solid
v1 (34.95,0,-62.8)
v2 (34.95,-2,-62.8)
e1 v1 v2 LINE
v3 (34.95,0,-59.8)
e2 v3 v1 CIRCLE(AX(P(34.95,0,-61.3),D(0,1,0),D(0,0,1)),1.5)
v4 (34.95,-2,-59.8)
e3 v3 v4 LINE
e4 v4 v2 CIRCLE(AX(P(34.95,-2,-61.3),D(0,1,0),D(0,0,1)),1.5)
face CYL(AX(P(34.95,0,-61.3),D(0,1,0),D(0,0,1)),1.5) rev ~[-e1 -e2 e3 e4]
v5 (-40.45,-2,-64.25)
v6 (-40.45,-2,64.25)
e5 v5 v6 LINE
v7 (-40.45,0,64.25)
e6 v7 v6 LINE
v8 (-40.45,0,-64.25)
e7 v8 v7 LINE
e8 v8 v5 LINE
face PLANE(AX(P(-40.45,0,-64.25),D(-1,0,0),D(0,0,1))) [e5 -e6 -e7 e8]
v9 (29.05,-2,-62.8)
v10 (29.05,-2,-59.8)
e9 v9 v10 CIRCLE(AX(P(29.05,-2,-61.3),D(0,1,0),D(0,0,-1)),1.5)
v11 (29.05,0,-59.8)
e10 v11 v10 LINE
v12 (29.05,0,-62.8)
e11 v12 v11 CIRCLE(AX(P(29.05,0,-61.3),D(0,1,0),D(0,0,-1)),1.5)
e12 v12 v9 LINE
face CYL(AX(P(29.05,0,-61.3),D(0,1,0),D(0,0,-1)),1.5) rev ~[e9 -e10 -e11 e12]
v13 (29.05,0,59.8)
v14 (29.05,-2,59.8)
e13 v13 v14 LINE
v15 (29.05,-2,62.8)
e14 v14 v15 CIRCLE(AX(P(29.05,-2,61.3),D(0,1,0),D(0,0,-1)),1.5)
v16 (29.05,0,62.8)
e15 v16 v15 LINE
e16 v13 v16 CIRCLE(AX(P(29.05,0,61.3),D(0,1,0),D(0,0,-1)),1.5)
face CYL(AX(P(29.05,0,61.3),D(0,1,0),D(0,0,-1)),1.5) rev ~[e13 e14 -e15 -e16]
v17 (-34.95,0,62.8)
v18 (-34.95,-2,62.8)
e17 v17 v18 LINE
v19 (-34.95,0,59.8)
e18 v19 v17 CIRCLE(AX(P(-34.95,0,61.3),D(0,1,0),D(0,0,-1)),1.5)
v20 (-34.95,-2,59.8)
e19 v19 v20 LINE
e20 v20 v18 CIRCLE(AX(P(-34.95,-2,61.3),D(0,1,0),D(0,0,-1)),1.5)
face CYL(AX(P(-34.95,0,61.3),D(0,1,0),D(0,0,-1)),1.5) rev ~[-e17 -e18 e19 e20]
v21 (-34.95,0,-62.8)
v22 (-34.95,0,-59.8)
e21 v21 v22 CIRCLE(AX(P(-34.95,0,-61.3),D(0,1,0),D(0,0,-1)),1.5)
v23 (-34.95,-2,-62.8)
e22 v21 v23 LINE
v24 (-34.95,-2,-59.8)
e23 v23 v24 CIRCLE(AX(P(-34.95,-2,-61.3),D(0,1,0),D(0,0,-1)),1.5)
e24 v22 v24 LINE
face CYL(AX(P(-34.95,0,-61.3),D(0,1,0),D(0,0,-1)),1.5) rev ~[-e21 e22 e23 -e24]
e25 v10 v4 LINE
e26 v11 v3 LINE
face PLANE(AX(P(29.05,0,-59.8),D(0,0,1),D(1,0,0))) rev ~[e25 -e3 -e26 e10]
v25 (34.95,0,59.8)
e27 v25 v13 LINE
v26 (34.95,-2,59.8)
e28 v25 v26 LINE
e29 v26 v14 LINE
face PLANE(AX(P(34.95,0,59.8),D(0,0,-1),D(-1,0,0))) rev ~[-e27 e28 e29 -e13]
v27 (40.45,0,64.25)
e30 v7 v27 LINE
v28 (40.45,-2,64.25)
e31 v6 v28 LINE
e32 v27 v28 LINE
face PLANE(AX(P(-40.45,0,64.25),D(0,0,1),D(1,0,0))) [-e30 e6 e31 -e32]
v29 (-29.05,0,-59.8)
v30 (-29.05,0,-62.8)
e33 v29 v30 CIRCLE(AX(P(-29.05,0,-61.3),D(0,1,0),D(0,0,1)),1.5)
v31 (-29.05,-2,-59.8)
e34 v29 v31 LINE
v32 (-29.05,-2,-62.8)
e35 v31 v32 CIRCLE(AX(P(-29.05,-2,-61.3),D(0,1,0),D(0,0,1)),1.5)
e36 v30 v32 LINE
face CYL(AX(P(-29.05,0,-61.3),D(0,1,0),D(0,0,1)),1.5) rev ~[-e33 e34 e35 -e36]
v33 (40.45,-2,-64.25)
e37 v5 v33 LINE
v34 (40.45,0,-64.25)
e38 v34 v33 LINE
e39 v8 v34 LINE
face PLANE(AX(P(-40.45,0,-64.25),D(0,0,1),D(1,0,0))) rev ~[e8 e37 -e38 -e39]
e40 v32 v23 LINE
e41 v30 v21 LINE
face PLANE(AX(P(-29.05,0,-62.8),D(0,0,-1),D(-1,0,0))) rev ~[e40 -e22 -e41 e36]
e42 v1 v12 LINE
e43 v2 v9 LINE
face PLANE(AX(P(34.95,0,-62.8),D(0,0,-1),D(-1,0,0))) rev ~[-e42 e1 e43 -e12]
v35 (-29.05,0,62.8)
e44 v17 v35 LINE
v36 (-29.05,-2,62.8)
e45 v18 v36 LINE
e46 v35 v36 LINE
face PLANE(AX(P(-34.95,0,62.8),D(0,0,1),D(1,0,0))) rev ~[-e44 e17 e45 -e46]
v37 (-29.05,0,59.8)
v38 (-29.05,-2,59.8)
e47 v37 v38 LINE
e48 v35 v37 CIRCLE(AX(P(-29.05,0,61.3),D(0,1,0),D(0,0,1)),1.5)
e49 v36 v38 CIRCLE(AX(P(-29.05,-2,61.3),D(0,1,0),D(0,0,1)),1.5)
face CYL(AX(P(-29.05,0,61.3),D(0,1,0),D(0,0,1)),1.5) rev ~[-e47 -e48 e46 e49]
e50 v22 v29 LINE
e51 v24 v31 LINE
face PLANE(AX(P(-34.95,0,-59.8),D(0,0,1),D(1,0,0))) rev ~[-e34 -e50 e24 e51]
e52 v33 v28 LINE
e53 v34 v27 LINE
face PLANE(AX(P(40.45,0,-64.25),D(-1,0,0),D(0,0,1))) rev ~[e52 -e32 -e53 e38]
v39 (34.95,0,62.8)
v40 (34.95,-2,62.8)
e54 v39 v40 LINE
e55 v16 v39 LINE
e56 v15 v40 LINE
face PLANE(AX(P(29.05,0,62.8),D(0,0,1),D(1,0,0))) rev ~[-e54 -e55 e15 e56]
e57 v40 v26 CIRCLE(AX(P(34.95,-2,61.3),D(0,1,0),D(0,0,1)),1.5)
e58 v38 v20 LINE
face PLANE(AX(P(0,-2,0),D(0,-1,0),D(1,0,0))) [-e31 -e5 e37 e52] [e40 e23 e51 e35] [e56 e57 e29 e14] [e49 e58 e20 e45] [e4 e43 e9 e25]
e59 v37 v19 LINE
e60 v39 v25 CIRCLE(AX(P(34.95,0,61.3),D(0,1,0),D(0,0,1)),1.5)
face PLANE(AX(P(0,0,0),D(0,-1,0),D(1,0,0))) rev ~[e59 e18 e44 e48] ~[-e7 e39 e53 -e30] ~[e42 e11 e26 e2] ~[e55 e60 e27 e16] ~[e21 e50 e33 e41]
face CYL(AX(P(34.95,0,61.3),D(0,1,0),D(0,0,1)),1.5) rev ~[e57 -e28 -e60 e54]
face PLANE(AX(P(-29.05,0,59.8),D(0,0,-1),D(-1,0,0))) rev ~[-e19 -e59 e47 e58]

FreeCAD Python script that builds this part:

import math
import FreeCAD as App
import Part
import Sketcher
from FreeCAD import Vector

doc = App.newDocument("Part")
body = doc.addObject("PartDesign::Body", "Body")

# Sketch on XZ plane
sketch1 = body.newObject("Sketcher::SketchObject", "Sketch")
sketch1.AttachmentSupport = (doc.getObject("XZ_Plane"), [""])
sketch1.MapMode = "FlatFace"
sketch1.addGeometry(Part.LineSegment(Vector(-40.5, 64.2, 0), Vector(-40.5, -64.2, 0)), False)
sketch1.addGeometry(Part.LineSegment(Vector(-40.5, -64.2, 0), Vector(40.5, -64.2, 0)), False)
sketch1.addGeometry(Part.LineSegment(Vector(40.5, -64.2, 0), Vector(40.5, 64.2, 0)), False)
sketch1.addGeometry(Part.LineSegment(Vector(40.5, 64.2, 0), Vector(-40.5, 64.2, 0)), False)
sketch1.addGeometry(Part.LineSegment(Vector(-29.1, -62.8, 0), Vector(-35, -62.8, 0)), False)
sketch1.addGeometry(Part.ArcOfCircle(Part.Circle(Vector(-35, -61.3, 0), Vector(0, 0, 1), 1.5), math.radians(90), math.radians(270)), False)
sketch1.addGeometry(Part.LineSegment(Vector(-35, -59.8, 0), Vector(-29.1, -59.8, 0)), False)
sketch1.addGeometry(Part.ArcOfCircle(Part.Circle(Vector(-29.1, -61.3, 0), Vector(0, 0, 1), 1.5), math.radians(-90), math.radians(90)), False)
sketch1.addGeometry(Part.LineSegment(Vector(35, -62.8, 0), Vector(29.1, -62.8, 0)), False)
sketch1.addGeometry(Part.ArcOfCircle(Part.Circle(Vector(29.1, -61.3, 0), Vector(0, 0, 1), 1.5), math.radians(90), math.radians(270)), False)
sketch1.addGeometry(Part.LineSegment(Vector(29.1, -59.8, 0), Vector(35, -59.8, 0)), False)
sketch1.addGeometry(Part.ArcOfCircle(Part.Circle(Vector(35, -61.3, 0), Vector(0, 0, 1), 1.5), math.radians(-90), math.radians(90)), False)
sketch1.addGeometry(Part.LineSegment(Vector(-29.1, 59.8, 0), Vector(-35, 59.8, 0)), False)
sketch1.addGeometry(Part.ArcOfCircle(Part.Circle(Vector(-35, 61.3, 0), Vector(0, 0, 1), 1.5), math.radians(90), math.radians(270)), False)
sketch1.addGeometry(Part.LineSegment(Vector(-35, 62.8, 0), Vector(-29.1, 62.8, 0)), False)
sketch1.addGeometry(Part.ArcOfCircle(Part.Circle(Vector(-29.1, 61.3, 0), Vector(0, 0, 1), 1.5), math.radians(-90), math.radians(90)), False)
sketch1.addGeometry(Part.LineSegment(Vector(35, 59.8, 0), Vector(29.1, 59.8, 0)), False)
sketch1.addGeometry(Part.ArcOfCircle(Part.Circle(Vector(29.1, 61.3, 0), Vector(0, 0, 1), 1.5), math.radians(90), math.radians(270)), False)
sketch1.addGeometry(Part.LineSegment(Vector(29.1, 62.8, 0), Vector(35, 62.8, 0)), False)
sketch1.addGeometry(Part.ArcOfCircle(Part.Circle(Vector(35, 61.3, 0), Vector(0, 0, 1), 1.5), math.radians(-90), math.radians(90)), False)
sketch1.addConstraint(Sketcher.Constraint("Coincident", 0, 2, 1, 1))
sketch1.addConstraint(Sketcher.Constraint("Coincident", 1, 2, 2, 1))
sketch1.addConstraint(Sketcher.Constraint("Coincident", 2, 2, 3, 1))
sketch1.addConstraint(Sketcher.Constraint("Coincident", 3, 2, 0, 1))
sketch1.addConstraint(Sketcher.Constraint("Tangent", 4, 2, 5, 2))
sketch1.addConstraint(Sketcher.Constraint("Tangent", 5, 1, 6, 1))
sketch1.addConstraint(Sketcher.Constraint("Tangent", 6, 2, 7, 2))
sketch1.addConstraint(Sketcher.Constraint("Tangent", 7, 1, 4, 1))
sketch1.addConstraint(Sketcher.Constraint("Tangent", 8, 2, 9, 2))
sketch1.addConstraint(Sketcher.Constraint("Tangent", 9, 1, 10, 1))
sketch1.addConstraint(Sketcher.Constraint("Tangent", 10, 2, 11, 2))
sketch1.addConstraint(Sketcher.Constraint("Tangent", 11, 1, 8, 1))
sketch1.addConstraint(Sketcher.Constraint("Tangent", 12, 2, 13, 2))
sketch1.addConstraint(Sketcher.Constraint("Tangent", 13, 1, 14, 1))
sketch1.addConstraint(Sketcher.Constraint("Tangent", 14, 2, 15, 2))
sketch1.addConstraint(Sketcher.Constraint("Tangent", 15, 1, 12, 1))
sketch1.addConstraint(Sketcher.Constraint("Tangent", 16, 2, 17, 2))
sketch1.addConstraint(Sketcher.Constraint("Tangent", 17, 1, 18, 1))
sketch1.addConstraint(Sketcher.Constraint("Tangent", 18, 2, 19, 2))
sketch1.addConstraint(Sketcher.Constraint("Tangent", 19, 1, 16, 1))
sketch1.addConstraint(Sketcher.Constraint("Vertical", 0))
sketch1.addConstraint(Sketcher.Constraint("Horizontal", 1))
sketch1.addConstraint(Sketcher.Constraint("Vertical", 2))
sketch1.addConstraint(Sketcher.Constraint("Horizontal", 3))
sketch1.addConstraint(Sketcher.Constraint("Horizontal", 4))
sketch1.addConstraint(Sketcher.Constraint("Horizontal", 6))
sketch1.addConstraint(Sketcher.Constraint("Horizontal", 8))
sketch1.addConstraint(Sketcher.Constraint("Horizontal", 10))
sketch1.addConstraint(Sketcher.Constraint("Horizontal", 12))
sketch1.addConstraint(Sketcher.Constraint("Horizontal", 14))
sketch1.addConstraint(Sketcher.Constraint("Horizontal", 16))
sketch1.addConstraint(Sketcher.Constraint("Horizontal", 18))
sketch1.addConstraint(Sketcher.Constraint("Equal", 7, 9))
sketch1.addConstraint(Sketcher.Constraint("Equal", 11, 13))
sketch1.addConstraint(Sketcher.Constraint("Equal", 15, 17))
sketch1.addConstraint(Sketcher.Constraint("Symmetric", 11, 3, 13, 3, -1, 1))
sketch1.addConstraint(Sketcher.Constraint("Symmetric", 7, 3, 17, 3, -1, 1))
sketch1.addConstraint(Sketcher.Constraint("Symmetric", 0, 2, 2, 2, -1, 1))
sketch1.addConstraint(Sketcher.Constraint("Symmetric", 7, 3, 9, 3, -2))
sketch1.addConstraint(Sketcher.Constraint("Vertical", 5, 3, 13, 3))
sketch1.addConstraint(Sketcher.Constraint("Vertical", 7, 3, 15, 3))
sketch1.addConstraint(Sketcher.Constraint("Vertical", 11, 3, 19, 3))
sketch1.addConstraint(Sketcher.Constraint("Radius", 5, 1.5))
sketch1.addConstraint(Sketcher.Constraint("DistanceX", 1, 1, 1, 2, 80.9))
sketch1.addConstraint(Sketcher.Constraint("DistanceX", 4, 2, 4, 1, 5.9))
sketch1.addConstraint(Sketcher.Constraint("DistanceY", 0, 2, 0, 1, 128.5))
sketch1.addConstraint(Sketcher.Constraint("DistanceX", 5, 3, 9, 3, 64.0))
sketch1.addConstraint(Sketcher.Constraint("DistanceY", 5, 3, -1, 1, 61.3))
pad1 = body.newObject("PartDesign::Pad", "Pad")
pad1.Profile = sketch1
pad1.Length = 2

doc.recompute()
